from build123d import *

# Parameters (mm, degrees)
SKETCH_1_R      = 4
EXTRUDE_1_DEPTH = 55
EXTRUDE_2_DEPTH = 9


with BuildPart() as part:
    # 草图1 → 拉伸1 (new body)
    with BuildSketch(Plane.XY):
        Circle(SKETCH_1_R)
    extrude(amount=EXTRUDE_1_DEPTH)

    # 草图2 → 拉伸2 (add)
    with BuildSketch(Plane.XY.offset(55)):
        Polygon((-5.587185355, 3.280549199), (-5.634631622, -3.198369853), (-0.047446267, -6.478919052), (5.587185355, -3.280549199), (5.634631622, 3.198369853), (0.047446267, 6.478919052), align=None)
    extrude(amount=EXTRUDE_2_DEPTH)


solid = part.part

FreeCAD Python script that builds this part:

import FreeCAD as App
import Part
import Sketcher

V = App.Vector
Q = App.Units.Quantity

doc = App.newDocument("Part")
body = doc.addObject("PartDesign::Body", "Body")

# Sketch on XY plane
sketch1 = body.newObject("Sketcher::SketchObject", "Sketch")
sketch1.AttachmentSupport = (doc.getObject("XY_Plane"), [""])
sketch1.MapMode = "FlatFace"
sketch1.addGeometry(Part.Circle(V(0, 0, 0), V(0, 0, 1), 4), False)
sketch1.addConstraint([
    Sketcher.Constraint("Coincident", 0, 3, -1, 1),
    Sketcher.Constraint("Diameter", 0, Q("8 mm")),
])
pad1 = body.newObject("PartDesign::Pad", "Pad")
pad1.Profile = sketch1
pad1.Length = 55

# Sketch on XY plane
sketch2 = body.newObject("Sketcher::SketchObject", "Sketch001")
sketch2.AttachmentSupport = (doc.getObject("XY_Plane"), [""])
sketch2.MapMode = "FlatFace"
sketch2.AttachmentOffset = App.Placement(V(0, 0, 55), App.Rotation())
sketch2.addGeometry([
    Part.LineSegment(V(-6, 3, 0), V(-6, -3, 0)),  # 0
    Part.LineSegment(V(-6, -3, 0), V(0, -6, 0)),  # 1
    Part.LineSegment(V(0, -6, 0), V(6, -3, 0)),  # 2
    Part.LineSegment(V(6, -3, 0), V(6, 3, 0)),  # 3
    Part.LineSegment(V(6, 3, 0), V(0, 6, 0)),  # 4
    Part.LineSegment(V(0, 6, 0), V(-6, 3, 0)),  # 5
], False)
sketch2.addConstraint([
    Sketcher.Constraint("Coincident", 0, 2, 1, 1),
    Sketcher.Constraint("Coincident", 1, 2, 2, 1),
    Sketcher.Constraint("Coincident", 2, 2, 3, 1),
    Sketcher.Constraint("Coincident", 3, 2, 4, 1),
    Sketcher.Constraint("Coincident", 4, 2, 5, 1),
    Sketcher.Constraint("Coincident", 5, 2, 0, 1),
    Sketcher.Constraint("Symmetric", 0, 2, 3, 2, -1, 1),
    Sketcher.Constraint("Symmetric", 1, 2, 4, 2, -1, 1),
    Sketcher.Constraint("Symmetric", 2, 2, 5, 2, -1, 1),
    Sketcher.Constraint("Equal", 0, 1),
    Sketcher.Constraint("Equal", 1, 2),
    Sketcher.Constraint("DistanceY", 2, 2, 5, 2, Q("6.561098 mm")),
    Sketcher.Constraint("DistanceX", 0, 2, -1, 1, Q("5.634632 mm")),
    Sketcher.Constraint("DistanceY", 0, 2, -1, 1, Q("3.19837 mm")),
    Sketcher.Constraint("DistanceY", 1, 2, -1, 1, Q("6.478919 mm")),
])
pad2 = body.newObject("PartDesign::Pad", "Pad001")
pad2.Profile = sketch2
pad2.Length = 9

doc.recompute()
